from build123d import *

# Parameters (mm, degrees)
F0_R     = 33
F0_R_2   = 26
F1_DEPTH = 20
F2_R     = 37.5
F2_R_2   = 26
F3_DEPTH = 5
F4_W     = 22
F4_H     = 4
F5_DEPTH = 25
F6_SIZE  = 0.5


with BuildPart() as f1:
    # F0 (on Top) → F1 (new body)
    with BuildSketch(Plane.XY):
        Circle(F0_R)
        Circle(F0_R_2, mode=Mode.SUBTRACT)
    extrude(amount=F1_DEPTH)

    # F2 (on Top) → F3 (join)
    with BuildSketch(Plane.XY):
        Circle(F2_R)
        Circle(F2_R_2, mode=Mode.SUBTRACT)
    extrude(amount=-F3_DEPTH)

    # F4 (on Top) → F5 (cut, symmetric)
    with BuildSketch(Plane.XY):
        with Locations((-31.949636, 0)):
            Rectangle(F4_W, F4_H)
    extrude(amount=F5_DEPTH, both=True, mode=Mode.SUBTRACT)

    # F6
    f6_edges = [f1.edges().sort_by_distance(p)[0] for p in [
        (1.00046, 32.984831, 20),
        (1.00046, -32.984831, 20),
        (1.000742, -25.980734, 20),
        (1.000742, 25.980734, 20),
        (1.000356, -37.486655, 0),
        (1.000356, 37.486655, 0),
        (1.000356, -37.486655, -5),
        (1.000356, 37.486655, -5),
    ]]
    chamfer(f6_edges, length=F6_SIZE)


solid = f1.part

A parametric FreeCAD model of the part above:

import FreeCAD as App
import Part
import Sketcher
from FreeCAD import Vector
Q = App.Units.Quantity


def edges_at(feature, points):
    """Names of the edges that pass closest to the given points."""
    edges = feature.Shape.Edges
    near = lambda p: min(range(len(edges)), key=lambda i: edges[i].distToShape(Part.Vertex(*p))[0])
    return sorted({f"Edge{near(p) + 1}" for p in points})


def add_polygon(sketch, points):
    """Adds a closed chain of lines whose ends are joined by coincident constraints."""
    first, n = sketch.GeometryCount, len(points)
    for a, b in zip(points, points[1:] + points[:1]):
        sketch.addGeometry(Part.LineSegment(App.Vector(*a, 0), App.Vector(*b, 0)), False)
    for i in range(n):
        sketch.addConstraint(Sketcher.Constraint("Coincident", first + i, 2, first + (i + 1) % n, 1))

doc = App.newDocument("Part")
body = doc.addObject("PartDesign::Body", "Body")

# Sketch on XY plane
sketch1 = doc.addObject("Sketcher::SketchObject", "Sketch")
body.addObject(sketch1)
sketch1.AttachmentSupport = (doc.XY_Plane, [""])
sketch1.MapMode = "FlatFace"
sketch1.addGeometry(Part.Circle(Vector(0, 0, 0), Vector(0, 0, 1), 33), False)
sketch1.addGeometry(Part.Circle(Vector(0, 0, 0), Vector(0, 0, 1), 26), False)
sketch1.addConstraint(Sketcher.Constraint("Coincident", 0, 3, -1, 1))
sketch1.addConstraint(Sketcher.Constraint("Coincident", 1, 3, -1, 1))
sketch1.addConstraint(Sketcher.Constraint("Diameter", 0, Q("66 mm")))
sketch1.addConstraint(Sketcher.Constraint("Diameter", 1, Q("52 mm")))
pad1 = doc.addObject("PartDesign::Pad", "Pad")
body.addObject(pad1)
pad1.Profile = sketch1
pad1.Length = 20

# Sketch on XY plane
sketch2 = doc.addObject("Sketcher::SketchObject", "Sketch001")
body.addObject(sketch2)
sketch2.AttachmentSupport = (doc.XY_Plane, [""])
sketch2.MapMode = "FlatFace"
sketch2.addGeometry(Part.Circle(Vector(0, 0, 0), Vector(0, 0, 1), 38), False)
sketch2.addGeometry(Part.Circle(Vector(0, 0, 0), Vector(0, 0, 1), 26), False)
sketch2.addConstraint(Sketcher.Constraint("Coincident", 0, 3, -1, 1))
sketch2.addConstraint(Sketcher.Constraint("Coincident", 1, 3, -1, 1))
sketch2.addConstraint(Sketcher.Constraint("Diameter", 0, Q("75 mm")))
sketch2.addConstraint(Sketcher.Constraint("Diameter", 1, Q("52 mm")))
pad2 = doc.addObject("PartDesign::Pad", "Pad001")
body.addObject(pad2)
pad2.Profile = sketch2
pad2.Length = 5
pad2.Reversed = True

# Sketch on XY plane
sketch3 = doc.addObject("Sketcher::SketchObject", "Sketch002")
body.addObject(sketch3)
sketch3.AttachmentSupport = (doc.XY_Plane, [""])
sketch3.MapMode = "FlatFace"
add_polygon(sketch3, [(-42.9, 2), (-42.9, -2), (-20.9, -2), (-20.9, 2)])  # lines 0-3
sketch3.addConstraint(Sketcher.Constraint("Vertical", 0))
sketch3.addConstraint(Sketcher.Constraint("Horizontal", 1))
sketch3.addConstraint(Sketcher.Constraint("Vertical", 2))
sketch3.addConstraint(Sketcher.Constraint("Horizontal", 3))
sketch3.addConstraint(Sketcher.Constraint("DistanceX", 1, 1, 1, 2, Q("22 mm")))
sketch3.addConstraint(Sketcher.Constraint("DistanceY", 0, 2, 0, 1, Q("4 mm")))
sketch3.addConstraint(Sketcher.Constraint("DistanceY", 0, 2, -1, 1, Q("2 mm")))
sketch3.addConstraint(Sketcher.Constraint("DistanceX", 0, 2, -1, 1, Q("42.949636 mm")))
pocket1 = doc.addObject("PartDesign::Pocket", "Pocket")
body.addObject(pocket1)
pocket1.Profile = sketch3
pocket1.Length = 50
pocket1.Midplane = True
doc.recompute()

chamfer = doc.addObject("PartDesign::Chamfer", "Chamfer")
body.addObject(chamfer)
chamfer.Base = (pocket1, edges_at(pocket1, [
    (1, 32.985, 20),
    (1, -32.985, 20),
    (1.001, -25.981, 20),
    (1.001, 25.981, 20),
    (1, -37.487, 0),
    (1, 37.487, 0),
    (1, -37.487, -5),
    (1, 37.487, -5),
]))
chamfer.Size = 0.5

doc.recompute()
